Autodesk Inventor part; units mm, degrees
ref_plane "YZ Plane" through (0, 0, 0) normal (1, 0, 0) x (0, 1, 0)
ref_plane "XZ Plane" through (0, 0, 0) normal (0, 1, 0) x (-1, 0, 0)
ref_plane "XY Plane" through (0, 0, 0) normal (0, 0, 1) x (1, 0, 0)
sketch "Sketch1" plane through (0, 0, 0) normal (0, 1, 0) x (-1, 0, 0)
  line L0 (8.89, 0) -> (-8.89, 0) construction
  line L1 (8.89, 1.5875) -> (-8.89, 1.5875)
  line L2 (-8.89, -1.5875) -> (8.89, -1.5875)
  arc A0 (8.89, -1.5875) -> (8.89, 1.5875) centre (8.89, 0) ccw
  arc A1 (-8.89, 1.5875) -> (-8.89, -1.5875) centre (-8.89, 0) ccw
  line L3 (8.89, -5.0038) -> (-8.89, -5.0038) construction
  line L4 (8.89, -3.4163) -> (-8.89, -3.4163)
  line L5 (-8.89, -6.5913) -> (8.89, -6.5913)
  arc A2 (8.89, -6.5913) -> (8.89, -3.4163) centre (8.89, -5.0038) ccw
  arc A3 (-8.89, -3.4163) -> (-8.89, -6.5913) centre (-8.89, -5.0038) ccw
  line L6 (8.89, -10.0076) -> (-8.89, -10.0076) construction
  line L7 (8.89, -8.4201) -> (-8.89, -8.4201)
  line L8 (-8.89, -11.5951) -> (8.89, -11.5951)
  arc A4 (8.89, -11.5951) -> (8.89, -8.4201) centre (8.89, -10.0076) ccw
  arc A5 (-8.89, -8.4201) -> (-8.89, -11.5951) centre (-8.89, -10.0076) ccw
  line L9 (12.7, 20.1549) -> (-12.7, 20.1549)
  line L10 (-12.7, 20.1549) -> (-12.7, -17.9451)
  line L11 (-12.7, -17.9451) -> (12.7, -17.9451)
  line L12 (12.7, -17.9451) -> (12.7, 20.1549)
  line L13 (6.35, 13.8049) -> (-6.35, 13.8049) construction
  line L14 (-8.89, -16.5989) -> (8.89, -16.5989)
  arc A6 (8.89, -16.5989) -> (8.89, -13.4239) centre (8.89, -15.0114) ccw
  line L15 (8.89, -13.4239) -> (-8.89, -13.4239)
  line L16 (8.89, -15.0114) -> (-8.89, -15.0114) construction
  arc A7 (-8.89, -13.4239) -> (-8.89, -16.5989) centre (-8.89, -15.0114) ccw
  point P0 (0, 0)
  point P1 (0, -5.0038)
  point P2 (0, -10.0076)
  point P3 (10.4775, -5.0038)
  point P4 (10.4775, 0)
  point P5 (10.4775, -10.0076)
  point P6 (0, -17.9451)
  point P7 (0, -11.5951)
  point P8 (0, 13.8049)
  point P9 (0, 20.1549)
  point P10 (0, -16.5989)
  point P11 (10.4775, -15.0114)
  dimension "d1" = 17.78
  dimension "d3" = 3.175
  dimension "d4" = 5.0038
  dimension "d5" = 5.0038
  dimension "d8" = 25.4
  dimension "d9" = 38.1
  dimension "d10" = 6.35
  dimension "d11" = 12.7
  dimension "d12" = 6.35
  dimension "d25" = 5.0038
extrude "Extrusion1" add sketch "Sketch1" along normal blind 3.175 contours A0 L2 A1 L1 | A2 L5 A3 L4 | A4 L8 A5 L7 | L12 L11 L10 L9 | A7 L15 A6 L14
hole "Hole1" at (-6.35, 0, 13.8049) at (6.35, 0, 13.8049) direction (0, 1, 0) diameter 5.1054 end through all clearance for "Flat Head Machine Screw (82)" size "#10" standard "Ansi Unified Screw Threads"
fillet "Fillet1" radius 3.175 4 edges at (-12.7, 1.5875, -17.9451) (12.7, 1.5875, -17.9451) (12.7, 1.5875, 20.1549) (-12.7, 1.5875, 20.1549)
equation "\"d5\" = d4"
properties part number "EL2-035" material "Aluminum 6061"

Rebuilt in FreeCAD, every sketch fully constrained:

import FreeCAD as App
import Part
import Sketcher

V = App.Vector
Q = App.Units.Quantity


def edges_at(feature, points):
    """Names of the edges that pass closest to the given points."""
    edges = feature.Shape.Edges
    near = lambda p: min(range(len(edges)), key=lambda i: edges[i].distToShape(Part.Vertex(*p))[0])
    return sorted({f"Edge{near(p) + 1}" for p in points})


def add_polygon(sketch, points):
    """Adds a closed chain of lines whose ends are joined by coincident constraints."""
    first, n = sketch.GeometryCount, len(points)
    for a, b in zip(points, points[1:] + points[:1]):
        sketch.addGeometry(Part.LineSegment(App.Vector(*a, 0), App.Vector(*b, 0)), False)
    for i in range(n):
        sketch.addConstraint(Sketcher.Constraint("Coincident", first + i, 2, first + (i + 1) % n, 1))

doc = App.newDocument("Part")
body = doc.addObject("PartDesign::Body", "Body")

sketch1 = body.newObject("Sketcher::SketchObject", "Sketch")
sketch1.AttachmentSupport = (doc.getObject("XZ_Plane"), [""])
sketch1.MapMode = "FlatFace"
add_polygon(sketch1, [(-13, -18), (-13, 20), (13, 20), (13, -18)])
sketch1.addConstraint([
    Sketcher.Constraint("Vertical", 0),
    Sketcher.Constraint("Horizontal", 1),
    Sketcher.Constraint("Vertical", 2),
    Sketcher.Constraint("Horizontal", 3),
    Sketcher.Constraint("DistanceX", 1, 1, 1, 2, Q("1 in")),
    Sketcher.Constraint("DistanceY", 0, 1, 0, 2, Q("1.5 in")),
    Sketcher.Constraint("DistanceX", 0, 2, -1, 1, Q("0.5 in")),
    Sketcher.Constraint("DistanceY", -1, 1, 0, 2, Q("0.7935 in")),
])
pad1 = body.newObject("PartDesign::Pad", "Pad")
pad1.Profile = sketch1
pad1.Length = Q("0.125 in")
pad1.Reversed = True

sketch2 = body.newObject("Sketcher::SketchObject", "Sketch001")
sketch2.AttachmentSupport = (doc.getObject("XZ_Plane"), [""])
sketch2.MapMode = "FlatFace"
sketch2.addGeometry([
    Part.Circle(V(-6.3, 13.8, 0), V(0, 0, 1), 2.6),
    Part.Circle(V(6.3, 13.8, 0), V(0, 0, 1), 2.6),
], False)
sketch2.addConstraint([
    Sketcher.Constraint("Equal", 0, 1),
    Sketcher.Constraint("Symmetric", 0, 3, 1, 3, -2),
    Sketcher.Constraint("Diameter", 0, Q("0.201 in")),
    Sketcher.Constraint("DistanceX", 0, 3, 1, 3, Q("0.5 in")),
    Sketcher.Constraint("DistanceY", -1, 1, 0, 3, Q("0.5435 in")),
])
doc.recompute()
hole = body.newObject("PartDesign::Hole", "Hole")
hole.Profile = sketch2
hole.ThreadType = "None"
hole.Diameter = Q("0.201 in")
hole.DepthType = "ThroughAll"
doc.recompute()

fillet = body.newObject("PartDesign::Fillet", "Fillet")
fillet.Base = (hole, edges_at(hole, [
    (-12.7, 1.587, -17.945),
    (12.7, 1.587, -17.945),
    (12.7, 1.587, 20.155),
    (-12.7, 1.587, 20.155),
]))
fillet.Radius = Q("0.125 in")

doc.recompute()
